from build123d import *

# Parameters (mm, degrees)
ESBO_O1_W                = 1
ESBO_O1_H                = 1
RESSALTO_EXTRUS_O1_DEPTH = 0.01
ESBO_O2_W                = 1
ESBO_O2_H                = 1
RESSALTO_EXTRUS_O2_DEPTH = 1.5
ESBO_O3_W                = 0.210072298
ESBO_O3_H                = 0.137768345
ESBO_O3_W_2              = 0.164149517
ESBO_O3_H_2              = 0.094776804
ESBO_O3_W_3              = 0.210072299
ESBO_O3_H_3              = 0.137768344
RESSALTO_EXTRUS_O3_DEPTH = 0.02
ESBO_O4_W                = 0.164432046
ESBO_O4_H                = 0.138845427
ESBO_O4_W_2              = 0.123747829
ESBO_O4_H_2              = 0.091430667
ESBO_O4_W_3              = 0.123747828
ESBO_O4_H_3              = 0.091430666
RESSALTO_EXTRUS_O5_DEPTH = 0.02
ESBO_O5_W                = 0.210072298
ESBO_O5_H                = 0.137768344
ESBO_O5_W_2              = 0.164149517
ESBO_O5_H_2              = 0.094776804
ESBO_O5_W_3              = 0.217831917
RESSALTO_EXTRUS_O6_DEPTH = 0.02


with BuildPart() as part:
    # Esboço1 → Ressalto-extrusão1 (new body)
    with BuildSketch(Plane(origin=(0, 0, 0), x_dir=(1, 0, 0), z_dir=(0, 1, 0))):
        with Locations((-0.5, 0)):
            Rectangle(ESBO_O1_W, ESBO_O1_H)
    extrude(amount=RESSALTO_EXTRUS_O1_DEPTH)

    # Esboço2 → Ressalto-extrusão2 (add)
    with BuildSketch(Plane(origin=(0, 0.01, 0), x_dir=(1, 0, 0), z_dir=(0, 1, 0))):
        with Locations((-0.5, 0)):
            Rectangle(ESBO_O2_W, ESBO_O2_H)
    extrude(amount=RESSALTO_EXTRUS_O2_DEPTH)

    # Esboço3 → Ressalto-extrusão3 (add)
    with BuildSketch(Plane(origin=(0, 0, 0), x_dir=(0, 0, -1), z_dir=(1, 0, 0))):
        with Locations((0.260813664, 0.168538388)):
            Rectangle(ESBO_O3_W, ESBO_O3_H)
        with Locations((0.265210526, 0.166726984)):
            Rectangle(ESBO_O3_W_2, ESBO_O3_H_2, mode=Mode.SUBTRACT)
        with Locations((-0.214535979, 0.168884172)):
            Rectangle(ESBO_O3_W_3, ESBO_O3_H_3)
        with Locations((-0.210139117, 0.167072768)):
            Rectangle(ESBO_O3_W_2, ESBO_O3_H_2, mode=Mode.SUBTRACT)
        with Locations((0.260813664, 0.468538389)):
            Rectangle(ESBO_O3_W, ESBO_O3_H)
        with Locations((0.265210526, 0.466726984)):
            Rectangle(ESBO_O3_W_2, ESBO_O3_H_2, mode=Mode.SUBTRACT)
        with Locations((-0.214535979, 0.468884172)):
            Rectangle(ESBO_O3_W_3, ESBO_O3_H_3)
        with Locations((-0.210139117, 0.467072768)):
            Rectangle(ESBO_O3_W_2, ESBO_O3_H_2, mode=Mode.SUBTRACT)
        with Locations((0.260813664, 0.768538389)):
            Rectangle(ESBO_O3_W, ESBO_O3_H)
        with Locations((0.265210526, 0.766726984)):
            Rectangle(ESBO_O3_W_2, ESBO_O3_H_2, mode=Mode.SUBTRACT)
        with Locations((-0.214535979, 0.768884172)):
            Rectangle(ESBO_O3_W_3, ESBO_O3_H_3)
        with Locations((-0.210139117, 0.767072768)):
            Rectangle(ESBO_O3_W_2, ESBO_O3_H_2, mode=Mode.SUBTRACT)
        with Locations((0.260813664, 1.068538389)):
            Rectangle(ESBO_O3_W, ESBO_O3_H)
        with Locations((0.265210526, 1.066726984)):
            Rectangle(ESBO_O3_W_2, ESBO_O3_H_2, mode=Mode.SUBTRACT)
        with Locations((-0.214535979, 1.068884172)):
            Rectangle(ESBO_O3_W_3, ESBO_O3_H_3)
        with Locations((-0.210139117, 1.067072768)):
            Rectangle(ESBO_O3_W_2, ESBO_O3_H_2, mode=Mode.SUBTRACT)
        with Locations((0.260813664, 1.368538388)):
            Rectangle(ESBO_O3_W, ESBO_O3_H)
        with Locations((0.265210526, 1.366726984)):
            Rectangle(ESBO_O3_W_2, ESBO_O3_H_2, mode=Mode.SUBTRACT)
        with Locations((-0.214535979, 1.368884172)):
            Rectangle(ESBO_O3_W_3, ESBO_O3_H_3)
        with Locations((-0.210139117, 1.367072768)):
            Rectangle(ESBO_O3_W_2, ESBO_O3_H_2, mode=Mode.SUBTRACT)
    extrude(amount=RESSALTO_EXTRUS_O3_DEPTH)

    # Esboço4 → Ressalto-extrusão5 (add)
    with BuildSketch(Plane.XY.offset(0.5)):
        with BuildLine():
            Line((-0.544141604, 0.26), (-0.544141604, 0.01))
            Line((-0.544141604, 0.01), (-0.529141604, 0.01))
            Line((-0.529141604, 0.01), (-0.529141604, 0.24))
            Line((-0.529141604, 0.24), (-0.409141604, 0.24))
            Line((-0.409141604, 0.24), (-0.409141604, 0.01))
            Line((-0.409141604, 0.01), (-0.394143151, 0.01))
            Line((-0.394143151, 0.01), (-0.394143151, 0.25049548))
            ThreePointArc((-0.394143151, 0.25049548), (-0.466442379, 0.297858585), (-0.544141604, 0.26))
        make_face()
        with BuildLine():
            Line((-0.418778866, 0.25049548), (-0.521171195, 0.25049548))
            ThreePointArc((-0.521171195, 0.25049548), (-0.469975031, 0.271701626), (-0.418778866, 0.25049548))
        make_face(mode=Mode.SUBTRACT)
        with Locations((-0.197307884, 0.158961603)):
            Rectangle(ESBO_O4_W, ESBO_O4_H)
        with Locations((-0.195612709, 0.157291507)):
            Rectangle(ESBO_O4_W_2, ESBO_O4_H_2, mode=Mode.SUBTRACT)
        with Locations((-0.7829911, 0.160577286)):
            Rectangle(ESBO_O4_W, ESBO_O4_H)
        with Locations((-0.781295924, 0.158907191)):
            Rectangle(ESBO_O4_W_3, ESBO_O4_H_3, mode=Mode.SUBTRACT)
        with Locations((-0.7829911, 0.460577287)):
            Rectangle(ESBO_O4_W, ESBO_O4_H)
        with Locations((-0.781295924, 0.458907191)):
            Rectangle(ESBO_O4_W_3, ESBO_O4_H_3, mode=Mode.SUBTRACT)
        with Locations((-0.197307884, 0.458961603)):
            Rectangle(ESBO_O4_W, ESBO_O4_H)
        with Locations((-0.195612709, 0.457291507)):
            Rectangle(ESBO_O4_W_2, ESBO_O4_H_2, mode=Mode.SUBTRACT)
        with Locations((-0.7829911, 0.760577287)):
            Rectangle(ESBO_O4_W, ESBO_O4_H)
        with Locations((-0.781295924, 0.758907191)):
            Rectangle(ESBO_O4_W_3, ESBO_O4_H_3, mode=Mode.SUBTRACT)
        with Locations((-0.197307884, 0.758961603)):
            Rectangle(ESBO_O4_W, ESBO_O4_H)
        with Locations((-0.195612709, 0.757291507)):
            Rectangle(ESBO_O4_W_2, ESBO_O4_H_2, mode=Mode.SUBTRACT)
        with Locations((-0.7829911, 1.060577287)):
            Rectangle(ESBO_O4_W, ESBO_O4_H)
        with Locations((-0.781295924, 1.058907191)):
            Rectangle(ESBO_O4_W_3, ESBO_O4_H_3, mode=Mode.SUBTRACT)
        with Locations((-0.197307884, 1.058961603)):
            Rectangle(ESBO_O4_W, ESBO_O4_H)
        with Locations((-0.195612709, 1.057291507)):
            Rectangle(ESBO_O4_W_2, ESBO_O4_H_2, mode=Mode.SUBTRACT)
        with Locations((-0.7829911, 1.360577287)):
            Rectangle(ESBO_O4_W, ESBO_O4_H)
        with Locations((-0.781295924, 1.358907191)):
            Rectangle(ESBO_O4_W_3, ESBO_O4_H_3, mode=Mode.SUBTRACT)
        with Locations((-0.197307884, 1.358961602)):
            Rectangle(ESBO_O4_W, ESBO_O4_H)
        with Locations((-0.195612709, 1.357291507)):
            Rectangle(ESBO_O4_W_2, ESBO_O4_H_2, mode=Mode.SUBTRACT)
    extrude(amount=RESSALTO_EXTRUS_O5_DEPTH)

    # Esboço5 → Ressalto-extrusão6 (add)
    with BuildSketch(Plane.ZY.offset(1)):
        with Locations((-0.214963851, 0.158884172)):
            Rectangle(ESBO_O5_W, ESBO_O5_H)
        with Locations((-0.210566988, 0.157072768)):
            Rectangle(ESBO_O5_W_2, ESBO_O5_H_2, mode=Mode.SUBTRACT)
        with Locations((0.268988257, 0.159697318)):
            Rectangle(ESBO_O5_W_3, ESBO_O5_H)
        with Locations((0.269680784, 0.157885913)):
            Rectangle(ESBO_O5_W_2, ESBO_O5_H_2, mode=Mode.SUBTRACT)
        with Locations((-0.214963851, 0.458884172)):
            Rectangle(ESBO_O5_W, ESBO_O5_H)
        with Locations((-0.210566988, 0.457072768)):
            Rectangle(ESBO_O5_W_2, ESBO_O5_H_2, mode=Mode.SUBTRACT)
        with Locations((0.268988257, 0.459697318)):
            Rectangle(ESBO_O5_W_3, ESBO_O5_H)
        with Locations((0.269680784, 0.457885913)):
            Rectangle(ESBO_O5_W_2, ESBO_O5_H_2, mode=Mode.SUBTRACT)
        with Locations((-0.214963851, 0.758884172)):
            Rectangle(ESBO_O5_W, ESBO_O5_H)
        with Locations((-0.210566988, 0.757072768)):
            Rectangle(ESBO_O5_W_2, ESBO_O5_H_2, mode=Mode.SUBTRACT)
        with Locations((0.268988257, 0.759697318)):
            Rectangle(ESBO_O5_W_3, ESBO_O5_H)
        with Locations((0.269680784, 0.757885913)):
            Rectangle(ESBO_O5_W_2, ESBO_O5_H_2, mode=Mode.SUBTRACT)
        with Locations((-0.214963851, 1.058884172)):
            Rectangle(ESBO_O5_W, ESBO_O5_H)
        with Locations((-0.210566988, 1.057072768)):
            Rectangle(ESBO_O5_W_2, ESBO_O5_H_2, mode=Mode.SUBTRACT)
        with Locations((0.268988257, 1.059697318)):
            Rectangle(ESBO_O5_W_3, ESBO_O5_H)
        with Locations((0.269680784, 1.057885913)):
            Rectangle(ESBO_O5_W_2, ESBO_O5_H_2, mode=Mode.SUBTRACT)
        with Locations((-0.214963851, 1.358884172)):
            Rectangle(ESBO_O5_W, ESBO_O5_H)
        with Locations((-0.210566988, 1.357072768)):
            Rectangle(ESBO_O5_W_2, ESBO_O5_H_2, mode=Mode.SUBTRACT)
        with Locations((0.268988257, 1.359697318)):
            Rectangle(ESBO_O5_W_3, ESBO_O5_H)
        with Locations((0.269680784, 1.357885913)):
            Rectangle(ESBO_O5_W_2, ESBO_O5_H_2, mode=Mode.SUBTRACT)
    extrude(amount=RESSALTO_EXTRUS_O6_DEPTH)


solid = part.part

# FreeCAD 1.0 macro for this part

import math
import FreeCAD as App
import Part
import Sketcher


def add_polygon(sketch, points):
    """Adds a closed chain of lines whose ends are joined by coincident constraints."""
    first, n = sketch.GeometryCount, len(points)
    for a, b in zip(points, points[1:] + points[:1]):
        sketch.addGeometry(Part.LineSegment(App.Vector(*a, 0), App.Vector(*b, 0)), False)
    for i in range(n):
        sketch.addConstraint(Sketcher.Constraint("Coincident", first + i, 2, first + (i + 1) % n, 1))

doc = App.newDocument("Part")
body = doc.addObject("PartDesign::Body", "Body")

sketch1 = body.newObject("Sketcher::SketchObject", "Sketch")
sketch1.AttachmentSupport = (doc.getObject("XZ_Plane"), [""])
sketch1.MapMode = "FlatFace"
add_polygon(sketch1, [(-1, -0.5), (-1, 0.5), (0, 0.5), (0, -0.5)])
sketch1.addConstraint([
    Sketcher.Constraint("Vertical", 0),
    Sketcher.Constraint("Horizontal", 1),
    Sketcher.Constraint("Vertical", 2),
    Sketcher.Constraint("Horizontal", 3),
    Sketcher.Constraint("Symmetric", 1, 2, 2, 2, -1, 1),
    Sketcher.Constraint("Equal", 3, 0),
    Sketcher.Constraint("DistanceX", 1, 1, 1, 2, 1.0),
])
pad1 = body.newObject("PartDesign::Pad", "Pad")
pad1.Profile = sketch1
pad1.Length = 0.01
pad1.Reversed = True

sketch2 = body.newObject("Sketcher::SketchObject", "Sketch001")
sketch2.AttachmentSupport = (doc.getObject("XZ_Plane"), [""])
sketch2.MapMode = "FlatFace"
sketch2.AttachmentOffset = App.Placement(App.Vector(0, 0, -0.01), App.Rotation())
add_polygon(sketch2, [(-1, -0.5), (-1, 0.5), (0, 0.5), (0, -0.5)])
sketch2.addConstraint([
    Sketcher.Constraint("Vertical", 0),
    Sketcher.Constraint("Horizontal", 1),
    Sketcher.Constraint("Vertical", 2),
    Sketcher.Constraint("Horizontal", 3),
    Sketcher.Constraint("Symmetric", 1, 2, 2, 2, -1, 1),
    Sketcher.Constraint("Equal", 3, 0),
    Sketcher.Constraint("DistanceX", 1, 1, 1, 2, 1.0),
])
pad2 = body.newObject("PartDesign::Pad", "Pad001")
pad2.Profile = sketch2
pad2.Length = 1.5
pad2.Reversed = True

sketch3 = body.newObject("Sketcher::SketchObject", "Sketch002")
sketch3.AttachmentSupport = (doc.getObject("YZ_Plane"), [""])
sketch3.MapMode = "FlatFace"
add_polygon(sketch3, [(0.24, -0.16), (0.1, -0.16), (0.1, -0.37), (0.24, -0.37)])
add_polygon(sketch3, [(0.12, -0.35), (0.12, -0.18), (0.21, -0.18), (0.21, -0.35)])
add_polygon(sketch3, [(0.24, 0.32), (0.1, 0.32), (0.1, 0.11), (0.24, 0.11)])
add_polygon(sketch3, [(0.12, 0.13), (0.12, 0.29), (0.21, 0.29), (0.21, 0.13)])
add_polygon(sketch3, [(0.54, -0.16), (0.4, -0.16), (0.4, -0.37), (0.54, -0.37)])
add_polygon(sketch3, [(0.42, -0.35), (0.42, -0.18), (0.51, -0.18), (0.51, -0.35)])
add_polygon(sketch3, [(0.54, 0.32), (0.4, 0.32), (0.4, 0.11), (0.54, 0.11)])
add_polygon(sketch3, [(0.42, 0.13), (0.42, 0.29), (0.51, 0.29), (0.51, 0.13)])
add_polygon(sketch3, [(0.84, -0.16), (0.7, -0.16), (0.7, -0.37), (0.84, -0.37)])
add_polygon(sketch3, [(0.72, -0.35), (0.72, -0.18), (0.81, -0.18), (0.81, -0.35)])
add_polygon(sketch3, [(0.84, 0.32), (0.7, 0.32), (0.7, 0.11), (0.84, 0.11)])
add_polygon(sketch3, [(0.72, 0.13), (0.72, 0.29), (0.81, 0.29), (0.81, 0.13)])
add_polygon(sketch3, [(1.14, -0.16), (1, -0.16), (1, -0.37), (1.14, -0.37)])
add_polygon(sketch3, [(1.02, -0.35), (1.02, -0.18), (1.11, -0.18), (1.11, -0.35)])
add_polygon(sketch3, [(1.14, 0.32), (1, 0.32), (1, 0.11), (1.14, 0.11)])
add_polygon(sketch3, [(1.02, 0.13), (1.02, 0.29), (1.11, 0.29), (1.11, 0.13)])
add_polygon(sketch3, [(1.44, -0.16), (1.3, -0.16), (1.3, -0.37), (1.44, -0.37)])
add_polygon(sketch3, [(1.32, -0.35), (1.32, -0.18), (1.41, -0.18), (1.41, -0.35)])
add_polygon(sketch3, [(1.44, 0.32), (1.3, 0.32), (1.3, 0.11), (1.44, 0.11)])
add_polygon(sketch3, [(1.32, 0.13), (1.32, 0.29), (1.41, 0.29), (1.41, 0.13)])
sketch3.addConstraint([
    Sketcher.Constraint("Horizontal", 0),
    Sketcher.Constraint("Vertical", 1),
    Sketcher.Constraint("Horizontal", 2),
    Sketcher.Constraint("Vertical", 3),
    Sketcher.Constraint("Vertical", 4),
    Sketcher.Constraint("Horizontal", 5),
    Sketcher.Constraint("Vertical", 6),
    Sketcher.Constraint("Horizontal", 7),
    Sketcher.Constraint("Horizontal", 8),
    Sketcher.Constraint("Vertical", 9),
    Sketcher.Constraint("Horizontal", 10),
    Sketcher.Constraint("Vertical", 11),
    Sketcher.Constraint("Vertical", 12),
    Sketcher.Constraint("Horizontal", 13),
    Sketcher.Constraint("Vertical", 14),
    Sketcher.Constraint("Horizontal", 15),
    Sketcher.Constraint("Horizontal", 16),
    Sketcher.Constraint("Vertical", 17),
    Sketcher.Constraint("Horizontal", 18),
    Sketcher.Constraint("Vertical", 19),
    Sketcher.Constraint("Vertical", 20),
    Sketcher.Constraint("Horizontal", 21),
    Sketcher.Constraint("Vertical", 22),
    Sketcher.Constraint("Horizontal", 23),
    Sketcher.Constraint("Horizontal", 24),
    Sketcher.Constraint("Vertical", 25),
    Sketcher.Constraint("Horizontal", 26),
    Sketcher.Constraint("Vertical", 27),
    Sketcher.Constraint("Vertical", 28),
    Sketcher.Constraint("Horizontal", 29),
    Sketcher.Constraint("Vertical", 30),
    Sketcher.Constraint("Horizontal", 31),
    Sketcher.Constraint("Horizontal", 32),
    Sketcher.Constraint("Vertical", 33),
    Sketcher.Constraint("Horizontal", 34),
    Sketcher.Constraint("Vertical", 35),
    Sketcher.Constraint("Vertical", 36),
    Sketcher.Constraint("Horizontal", 37),
    Sketcher.Constraint("Vertical", 38),
    Sketcher.Constraint("Horizontal", 39),
    Sketcher.Constraint("Horizontal", 40),
    Sketcher.Constraint("Vertical", 41),
    Sketcher.Constraint("Horizontal", 42),
    Sketcher.Constraint("Vertical", 43),
    Sketcher.Constraint("Vertical", 44),
    Sketcher.Constraint("Horizontal", 45),
    Sketcher.Constraint("Vertical", 46),
    Sketcher.Constraint("Horizontal", 47),
    Sketcher.Constraint("Horizontal", 48),
    Sketcher.Constraint("Vertical", 49),
    Sketcher.Constraint("Horizontal", 50),
    Sketcher.Constraint("Vertical", 51),
    Sketcher.Constraint("Vertical", 52),
    Sketcher.Constraint("Horizontal", 53),
    Sketcher.Constraint("Vertical", 54),
    Sketcher.Constraint("Horizontal", 55),
    Sketcher.Constraint("Horizontal", 56),
    Sketcher.Constraint("Vertical", 57),
    Sketcher.Constraint("Horizontal", 58),
    Sketcher.Constraint("Vertical", 59),
    Sketcher.Constraint("Vertical", 60),
    Sketcher.Constraint("Horizontal", 61),
    Sketcher.Constraint("Vertical", 62),
    Sketcher.Constraint("Horizontal", 63),
    Sketcher.Constraint("Horizontal", 64),
    Sketcher.Constraint("Vertical", 65),
    Sketcher.Constraint("Horizontal", 66),
    Sketcher.Constraint("Vertical", 67),
    Sketcher.Constraint("Vertical", 68),
    Sketcher.Constraint("Horizontal", 69),
    Sketcher.Constraint("Vertical", 70),
    Sketcher.Constraint("Horizontal", 71),
    Sketcher.Constraint("Horizontal", 72),
    Sketcher.Constraint("Vertical", 73),
    Sketcher.Constraint("Horizontal", 74),
    Sketcher.Constraint("Vertical", 75),
    Sketcher.Constraint("Vertical", 76),
    Sketcher.Constraint("Horizontal", 77),
    Sketcher.Constraint("Vertical", 78),
    Sketcher.Constraint("Horizontal", 79),
    Sketcher.Constraint("Horizontal", 3, 2, 16, 2),
    Sketcher.Constraint("Horizontal", 2, 2, 17, 2),
    Sketcher.Constraint("Horizontal", 5, 2, 20, 2),
    Sketcher.Constraint("Horizontal", 7, 2, 22, 2),
    Sketcher.Constraint("Horizontal", 11, 2, 24, 2),
    Sketcher.Constraint("Horizontal", 10, 2, 25, 2),
    Sketcher.Constraint("Horizontal", 13, 2, 28, 2),
    Sketcher.Constraint("Horizontal", 15, 2, 30, 2),
    Sketcher.Constraint("Horizontal", 19, 2, 32, 2),
    Sketcher.Constraint("Horizontal", 18, 2, 33, 2),
    Sketcher.Constraint("Horizontal", 21, 2, 36, 2),
    Sketcher.Constraint("Horizontal", 23, 2, 38, 2),
    Sketcher.Constraint("Horizontal", 27, 2, 40, 2),
    Sketcher.Constraint("Horizontal", 26, 2, 41, 2),
    Sketcher.Constraint("Horizontal", 29, 2, 44, 2),
    Sketcher.Constraint("Horizontal", 31, 2, 46, 2),
    Sketcher.Constraint("Horizontal", 35, 2, 48, 2),
    Sketcher.Constraint("Horizontal", 34, 2, 49, 2),
    Sketcher.Constraint("Horizontal", 37, 2, 52, 2),
    Sketcher.Constraint("Horizontal", 39, 2, 54, 2),
    Sketcher.Constraint("Horizontal", 43, 2, 56, 2),
    Sketcher.Constraint("Horizontal", 42, 2, 57, 2),
    Sketcher.Constraint("Horizontal", 45, 2, 60, 2),
    Sketcher.Constraint("Horizontal", 47, 2, 62, 2),
    Sketcher.Constraint("Horizontal", 51, 2, 64, 2),
    Sketcher.Constraint("Horizontal", 50, 2, 65, 2),
    Sketcher.Constraint("Horizontal", 53, 2, 68, 2),
    Sketcher.Constraint("Horizontal", 55, 2, 70, 2),
    Sketcher.Constraint("Horizontal", 59, 2, 72, 2),
    Sketcher.Constraint("Horizontal", 58, 2, 73, 2),
    Sketcher.Constraint("Horizontal", 61, 2, 76, 2),
    Sketcher.Constraint("Horizontal", 63, 2, 78, 2),
    Sketcher.Constraint("Equal", 2, 8),
    Sketcher.Constraint("Equal", 7, 13),
    Sketcher.Constraint("Equal", 10, 16),
    Sketcher.Constraint("Equal", 15, 21),
    Sketcher.Constraint("Equal", 18, 24),
    Sketcher.Constraint("Equal", 23, 29),
    Sketcher.Constraint("Equal", 26, 32),
    Sketcher.Constraint("Equal", 31, 37),
    Sketcher.Constraint("Equal", 34, 40),
    Sketcher.Constraint("Equal", 39, 45),
    Sketcher.Constraint("Equal", 42, 48),
    Sketcher.Constraint("Equal", 47, 53),
    Sketcher.Constraint("Equal", 50, 56),
    Sketcher.Constraint("Equal", 55, 61),
    Sketcher.Constraint("Equal", 58, 64),
    Sketcher.Constraint("Equal", 63, 69),
    Sketcher.Constraint("Equal", 66, 72),
    Sketcher.Constraint("Equal", 71, 77),
    Sketcher.Constraint("Equal", 3, 9),
    Sketcher.Constraint("Equal", 6, 12),
    Sketcher.Constraint("DistanceX", -1, 1, 56, 2, 1.0),
    Sketcher.Constraint("DistanceX", -1, 1, 8, 2, 0.1),
    Sketcher.Constraint("DistanceX", -1, 1, 24, 2, 0.4),
    Sketcher.Constraint("DistanceX", -1, 1, 40, 2, 0.7),
    Sketcher.Constraint("DistanceX", -1, 1, 72, 2, 1.3),
    Sketcher.Constraint("DistanceX", 0, 2, 0, 1, 0.137768),
    Sketcher.Constraint("DistanceY", 4, 1, 4, 2, 0.16415),
    Sketcher.Constraint("DistanceY", -1, 1, 9, 2, 0.1095),
    Sketcher.Constraint("DistanceX", 5, 1, 5, 2, 0.094777),
    Sketcher.Constraint("DistanceY", 1, 2, 1, 1, 0.210072),
    Sketcher.Constraint("DistanceY", 1, 2, -1, 1, 0.36585),
    Sketcher.Constraint("DistanceX", -1, 1, 4, 2, 0.119339),
    Sketcher.Constraint("DistanceX", -1, 1, 13, 2, 0.214461),
    Sketcher.Constraint("DistanceX", -1, 1, 20, 2, 0.419339),
    Sketcher.Constraint("DistanceX", -1, 1, 29, 2, 0.514461),
    Sketcher.Constraint("DistanceX", -1, 1, 36, 2, 0.719339),
    Sketcher.Constraint("DistanceX", -1, 1, 45, 2, 0.814461),
    Sketcher.Constraint("DistanceX", -1, 1, 52, 2, 1.019339),
    Sketcher.Constraint("DistanceX", -1, 1, 61, 2, 1.114461),
    Sketcher.Constraint("DistanceX", -1, 1, 68, 2, 1.319339),
    Sketcher.Constraint("DistanceX", -1, 1, 77, 2, 1.414461),
    Sketcher.Constraint("DistanceX", -1, 1, 0, 2, 0.099654),
    Sketcher.Constraint("DistanceY", 4, 2, -1, 1, 0.183136),
    Sketcher.Constraint("DistanceY", -1, 1, 12, 2, 0.292214),
    Sketcher.Constraint("DistanceX", -1, 1, 16, 2, 0.399654),
    Sketcher.Constraint("DistanceX", -1, 1, 32, 2, 0.699654),
    Sketcher.Constraint("DistanceX", -1, 1, 48, 2, 0.999654),
    Sketcher.Constraint("DistanceX", -1, 1, 64, 2, 1.299654),
])
pad3 = body.newObject("PartDesign::Pad", "Pad002")
pad3.Profile = sketch3
pad3.Length = 0.02

sketch4 = body.newObject("Sketcher::SketchObject", "Sketch003")
sketch4.AttachmentSupport = (doc.getObject("XY_Plane"), [""])
sketch4.MapMode = "FlatFace"
sketch4.AttachmentOffset = App.Placement(App.Vector(0, 0, 0.5), App.Rotation())
sketch4.addGeometry(Part.LineSegment(App.Vector(-0.544, 0.26, 0), App.Vector(-0.544, 0.01, 0)), False)
sketch4.addGeometry(Part.LineSegment(App.Vector(-0.544, 0.01, 0), App.Vector(-0.529, 0.01, 0)), False)
sketch4.addGeometry(Part.LineSegment(App.Vector(-0.529, 0.01, 0), App.Vector(-0.529, 0.24, 0)), False)
sketch4.addGeometry(Part.LineSegment(App.Vector(-0.529, 0.24, 0), App.Vector(-0.409, 0.24, 0)), False)
sketch4.addGeometry(Part.LineSegment(App.Vector(-0.409, 0.24, 0), App.Vector(-0.409, 0.01, 0)), False)
sketch4.addGeometry(Part.LineSegment(App.Vector(-0.409, 0.01, 0), App.Vector(-0.394, 0.01, 0)), False)
sketch4.addGeometry(Part.LineSegment(App.Vector(-0.394, 0.01, 0), App.Vector(-0.394, 0.25, 0)), False)
sketch4.addGeometry(Part.ArcOfCircle(Part.Circle(App.Vector(-0.472, 0.211, 0), App.Vector(0, 0, 1), 0.087), math.radians(27), math.radians(146)), False)
sketch4.addGeometry(Part.ArcOfCircle(Part.Circle(App.Vector(-0.47, 0.199, 0), App.Vector(0, 0, 1), 0.072), math.radians(45), math.radians(135)), False)
sketch4.addGeometry(Part.LineSegment(App.Vector(-0.419, 0.25, 0), App.Vector(-0.521, 0.25, 0)), False)
add_polygon(sketch4, [(-0.28, 0.228), (-0.28, 0.09), (-0.115, 0.09), (-0.115, 0.228)])
add_polygon(sketch4, [(-0.134, 0.112), (-0.257, 0.112), (-0.257, 0.203), (-0.134, 0.203)])
add_polygon(sketch4, [(-0.865, 0.23), (-0.865, 0.091), (-0.701, 0.091), (-0.701, 0.23)])
add_polygon(sketch4, [(-0.719, 0.113), (-0.843, 0.113), (-0.843, 0.205), (-0.719, 0.205)])
add_polygon(sketch4, [(-0.865, 0.53), (-0.865, 0.391), (-0.701, 0.391), (-0.701, 0.53)])
add_polygon(sketch4, [(-0.719, 0.413), (-0.843, 0.413), (-0.843, 0.505), (-0.719, 0.505)])
add_polygon(sketch4, [(-0.28, 0.528), (-0.28, 0.39), (-0.115, 0.39), (-0.115, 0.528)])
add_polygon(sketch4, [(-0.134, 0.412), (-0.257, 0.412), (-0.257, 0.503), (-0.134, 0.503)])
add_polygon(sketch4, [(-0.865, 0.83), (-0.865, 0.691), (-0.701, 0.691), (-0.701, 0.83)])
add_polygon(sketch4, [(-0.719, 0.713), (-0.843, 0.713), (-0.843, 0.805), (-0.719, 0.805)])
add_polygon(sketch4, [(-0.28, 0.828), (-0.28, 0.69), (-0.115, 0.69), (-0.115, 0.828)])
add_polygon(sketch4, [(-0.134, 0.712), (-0.257, 0.712), (-0.257, 0.803), (-0.134, 0.803)])
add_polygon(sketch4, [(-0.865, 1.13), (-0.865, 0.991), (-0.701, 0.991), (-0.701, 1.13)])
add_polygon(sketch4, [(-0.719, 1.013), (-0.843, 1.013), (-0.843, 1.105), (-0.719, 1.105)])
add_polygon(sketch4, [(-0.28, 1.128), (-0.28, 0.99), (-0.115, 0.99), (-0.115, 1.128)])
add_polygon(sketch4, [(-0.134, 1.012), (-0.257, 1.012), (-0.257, 1.103), (-0.134, 1.103)])
add_polygon(sketch4, [(-0.865, 1.43), (-0.865, 1.291), (-0.701, 1.291), (-0.701, 1.43)])
add_polygon(sketch4, [(-0.719, 1.313), (-0.843, 1.313), (-0.843, 1.405), (-0.719, 1.405)])
add_polygon(sketch4, [(-0.28, 1.428), (-0.28, 1.29), (-0.115, 1.29), (-0.115, 1.428)])
add_polygon(sketch4, [(-0.134, 1.312), (-0.257, 1.312), (-0.257, 1.403), (-0.134, 1.403)])
sketch4.addConstraint([
    Sketcher.Constraint("Coincident", 0, 2, 1, 1),
    Sketcher.Constraint("Coincident", 1, 2, 2, 1),
    Sketcher.Constraint("Coincident", 2, 2, 3, 1),
    Sketcher.Constraint("Coincident", 3, 2, 4, 1),
    Sketcher.Constraint("Coincident", 4, 2, 5, 1),
    Sketcher.Constraint("Coincident", 5, 2, 6, 1),
    Sketcher.Constraint("Coincident", 6, 2, 7, 1),
    Sketcher.Constraint("Coincident", 7, 2, 0, 1),
    Sketcher.Constraint("Coincident", 8, 1, 9, 1),
    Sketcher.Constraint("Coincident", 9, 2, 8, 2),
    Sketcher.Constraint("Vertical", 0),
    Sketcher.Constraint("Horizontal", 1),
    Sketcher.Constraint("Vertical", 2),
    Sketcher.Constraint("Horizontal", 3),
    Sketcher.Constraint("Vertical", 4),
    Sketcher.Constraint("Horizontal", 5),
    Sketcher.Constraint("Vertical", 6),
    Sketcher.Constraint("Horizontal", 9),
    Sketcher.Constraint("Vertical", 10),
    Sketcher.Constraint("Horizontal", 11),
    Sketcher.Constraint("Vertical", 12),
    Sketcher.Constraint("Horizontal", 13),
    Sketcher.Constraint("Horizontal", 14),
    Sketcher.Constraint("Vertical", 15),
    Sketcher.Constraint("Horizontal", 16),
    Sketcher.Constraint("Vertical", 17),
    Sketcher.Constraint("Vertical", 18),
    Sketcher.Constraint("Horizontal", 19),
    Sketcher.Constraint("Vertical", 20),
    Sketcher.Constraint("Horizontal", 21),
    Sketcher.Constraint("Horizontal", 22),
    Sketcher.Constraint("Vertical", 23),
    Sketcher.Constraint("Horizontal", 24),
    Sketcher.Constraint("Vertical", 25),
    Sketcher.Constraint("Vertical", 26),
    Sketcher.Constraint("Horizontal", 27),
    Sketcher.Constraint("Vertical", 28),
    Sketcher.Constraint("Horizontal", 29),
    Sketcher.Constraint("Horizontal", 30),
    Sketcher.Constraint("Vertical", 31),
    Sketcher.Constraint("Horizontal", 32),
    Sketcher.Constraint("Vertical", 33),
    Sketcher.Constraint("Vertical", 34),
    Sketcher.Constraint("Horizontal", 35),
    Sketcher.Constraint("Vertical", 36),
    Sketcher.Constraint("Horizontal", 37),
    Sketcher.Constraint("Horizontal", 38),
    Sketcher.Constraint("Vertical", 39),
    Sketcher.Constraint("Horizontal", 40),
    Sketcher.Constraint("Vertical", 41),
    Sketcher.Constraint("Vertical", 42),
    Sketcher.Constraint("Horizontal", 43),
    Sketcher.Constraint("Vertical", 44),
    Sketcher.Constraint("Horizontal", 45),
    Sketcher.Constraint("Horizontal", 46),
    Sketcher.Constraint("Vertical", 47),
    Sketcher.Constraint("Horizontal", 48),
    Sketcher.Constraint("Vertical", 49),
    Sketcher.Constraint("Vertical", 50),
    Sketcher.Constraint("Horizontal", 51),
    Sketcher.Constraint("Vertical", 52),
    Sketcher.Constraint("Horizontal", 53),
    Sketcher.Constraint("Horizontal", 54),
    Sketcher.Constraint("Vertical", 55),
    Sketcher.Constraint("Horizontal", 56),
    Sketcher.Constraint("Vertical", 57),
    Sketcher.Constraint("Vertical", 58),
    Sketcher.Constraint("Horizontal", 59),
    Sketcher.Constraint("Vertical", 60),
    Sketcher.Constraint("Horizontal", 61),
    Sketcher.Constraint("Horizontal", 62),
    Sketcher.Constraint("Vertical", 63),
    Sketcher.Constraint("Horizontal", 64),
    Sketcher.Constraint("Vertical", 65),
    Sketcher.Constraint("Vertical", 66),
    Sketcher.Constraint("Horizontal", 67),
    Sketcher.Constraint("Vertical", 68),
    Sketcher.Constraint("Horizontal", 69),
    Sketcher.Constraint("Horizontal", 70),
    Sketcher.Constraint("Vertical", 71),
    Sketcher.Constraint("Horizontal", 72),
    Sketcher.Constraint("Vertical", 73),
    Sketcher.Constraint("Vertical", 74),
    Sketcher.Constraint("Horizontal", 75),
    Sketcher.Constraint("Vertical", 76),
    Sketcher.Constraint("Horizontal", 77),
    Sketcher.Constraint("Horizontal", 78),
    Sketcher.Constraint("Vertical", 79),
    Sketcher.Constraint("Horizontal", 80),
    Sketcher.Constraint("Vertical", 81),
    Sketcher.Constraint("Vertical", 82),
    Sketcher.Constraint("Horizontal", 83),
    Sketcher.Constraint("Vertical", 84),
    Sketcher.Constraint("Horizontal", 85),
    Sketcher.Constraint("Horizontal", 86),
    Sketcher.Constraint("Vertical", 87),
    Sketcher.Constraint("Horizontal", 88),
    Sketcher.Constraint("Vertical", 89),
    Sketcher.Constraint("Horizontal", 1, 2, 4, 2),
    Sketcher.Constraint("Horizontal", 6, 2, 8, 1),
    Sketcher.Constraint("Vertical", 21, 2, 26, 2),
    Sketcher.Constraint("Vertical", 20, 2, 27, 2),
    Sketcher.Constraint("Vertical", 23, 2, 30, 2),
    Sketcher.Constraint("Vertical", 25, 2, 32, 2),
    Sketcher.Constraint("Vertical", 13, 2, 34, 2),
    Sketcher.Constraint("Vertical", 12, 2, 35, 2),
    Sketcher.Constraint("Vertical", 15, 2, 38, 2),
    Sketcher.Constraint("Vertical", 17, 2, 40, 2),
    Sketcher.Constraint("Vertical", 29, 2, 42, 2),
    Sketcher.Constraint("Vertical", 28, 2, 43, 2),
    Sketcher.Constraint("Vertical", 31, 2, 46, 2),
    Sketcher.Constraint("Vertical", 33, 2, 48, 2),
    Sketcher.Constraint("Vertical", 37, 2, 50, 2),
    Sketcher.Constraint("Vertical", 36, 2, 51, 2),
    Sketcher.Constraint("Vertical", 39, 2, 54, 2),
    Sketcher.Constraint("Vertical", 41, 2, 56, 2),
    Sketcher.Constraint("Vertical", 45, 2, 58, 2),
    Sketcher.Constraint("Vertical", 44, 2, 59, 2),
    Sketcher.Constraint("Vertical", 47, 2, 62, 2),
    Sketcher.Constraint("Vertical", 49, 2, 64, 2),
    Sketcher.Constraint("Vertical", 53, 2, 66, 2),
    Sketcher.Constraint("Vertical", 52, 2, 67, 2),
    Sketcher.Constraint("Vertical", 55, 2, 70, 2),
    Sketcher.Constraint("Vertical", 57, 2, 72, 2),
    Sketcher.Constraint("Vertical", 61, 2, 74, 2),
    Sketcher.Constraint("Vertical", 60, 2, 75, 2),
    Sketcher.Constraint("Vertical", 63, 2, 78, 2),
    Sketcher.Constraint("Vertical", 65, 2, 80, 2),
    Sketcher.Constraint("Vertical", 69, 2, 82, 2),
    Sketcher.Constraint("Vertical", 68, 2, 83, 2),
    Sketcher.Constraint("Vertical", 71, 2, 86, 2),
    Sketcher.Constraint("Vertical", 73, 2, 88, 2),
    Sketcher.Constraint("Equal", 1, 5),
    Sketcher.Constraint("Equal", 13, 19),
    Sketcher.Constraint("Equal", 16, 22),
    Sketcher.Constraint("Equal", 12, 18),
    Sketcher.Constraint("Equal", 17, 23),
    Sketcher.Constraint("Equal", 20, 26),
    Sketcher.Constraint("Equal", 25, 31),
    Sketcher.Constraint("Equal", 28, 34),
    Sketcher.Constraint("Equal", 33, 39),
    Sketcher.Constraint("Equal", 36, 42),
    Sketcher.Constraint("Equal", 41, 47),
    Sketcher.Constraint("Equal", 44, 50),
    Sketcher.Constraint("Equal", 49, 55),
    Sketcher.Constraint("Equal", 52, 58),
    Sketcher.Constraint("Equal", 57, 63),
    Sketcher.Constraint("Equal", 60, 66),
    Sketcher.Constraint("Equal", 65, 71),
    Sketcher.Constraint("Equal", 68, 74),
    Sketcher.Constraint("Equal", 73, 79),
    Sketcher.Constraint("Equal", 76, 82),
    Sketcher.Constraint("Equal", 81, 87),
    Sketcher.Constraint("DistanceX", 3, 1, 3, 2, 0.12),
    Sketcher.Constraint("DistanceY", 0, 2, 0, 1, 0.25),
    Sketcher.Constraint("DistanceY", 2, 1, 2, 2, 0.23),
    Sketcher.Constraint("DistanceX", 1, 1, 1, 2, 0.015),
    Sketcher.Constraint("DistanceY", -1, 1, 0, 2, 0.01),
    Sketcher.Constraint("DistanceY", -1, 1, 20, 2, 0.23),
    Sketcher.Constraint("DistanceY", -1, 1, 28, 2, 0.53),
    Sketcher.Constraint("DistanceY", -1, 1, 44, 2, 0.83),
    Sketcher.Constraint("DistanceY", -1, 1, 60, 2, 1.13),
    Sketcher.Constraint("DistanceY", -1, 1, 76, 2, 1.43),
    Sketcher.Constraint("Radius", 7, 0.087483),
    Sketcher.Constraint("Radius", 8, 0.072402),
    Sketcher.Constraint("DistanceY", 15, 1, 15, 2, 0.091431),
    Sketcher.Constraint("DistanceY", -1, 1, 8, 3, 0.199299),
    Sketcher.Constraint("DistanceX", 9, 2, 9, 1, 0.102392),
    Sketcher.Constraint("DistanceX", 11, 1, 11, 2, 0.164432),
    Sketcher.Constraint("DistanceX", 14, 2, 14, 1, 0.123748),
    Sketcher.Constraint("DistanceY", 10, 2, 10, 1, 0.138845),
    Sketcher.Constraint("DistanceX", 0, 2, -1, 1, 0.544142),
    Sketcher.Constraint("DistanceX", 8, 1, -1, 1, 0.418779),
    Sketcher.Constraint("DistanceY", -1, 1, 10, 2, 0.089539),
    Sketcher.Constraint("DistanceX", 11, 2, -1, 1, 0.115092),
    Sketcher.Constraint("DistanceX", 16, 2, -1, 1, 0.133739),
    Sketcher.Constraint("DistanceX", 22, 2, -1, 1, 0.84317),
    Sketcher.Constraint("DistanceY", -1, 1, 22, 2, 0.113192),
    Sketcher.Constraint("DistanceY", -1, 1, 30, 2, 0.413192),
    Sketcher.Constraint("DistanceY", -1, 1, 34, 2, 0.389539),
    Sketcher.Constraint("DistanceY", -1, 1, 46, 2, 0.713192),
    Sketcher.Constraint("DistanceY", -1, 1, 50, 2, 0.689539),
    Sketcher.Constraint("DistanceY", -1, 1, 62, 2, 1.013192),
    Sketcher.Constraint("DistanceY", -1, 1, 66, 2, 0.989539),
    Sketcher.Constraint("DistanceY", -1, 1, 78, 2, 1.313192),
    Sketcher.Constraint("DistanceY", -1, 1, 82, 2, 1.289539),
    Sketcher.Constraint("DistanceY", -1, 1, 14, 2, 0.111576),
    Sketcher.Constraint("DistanceX", 18, 2, -1, 1, 0.865207),
    Sketcher.Constraint("DistanceY", -1, 1, 38, 2, 0.411576),
    Sketcher.Constraint("DistanceY", -1, 1, 54, 2, 0.711576),
    Sketcher.Constraint("DistanceY", -1, 1, 70, 2, 1.011576),
    Sketcher.Constraint("DistanceY", -1, 1, 86, 2, 1.311576),
])
pad4 = body.newObject("PartDesign::Pad", "Pad003")
pad4.Profile = sketch4
pad4.Length = 0.02

sketch5 = body.newObject("Sketcher::SketchObject", "Sketch004")
sketch5.AttachmentSupport = (doc.getObject("YZ_Plane"), [""])
sketch5.MapMode = "FlatFace"
sketch5.AttachmentOffset = App.Placement(App.Vector(0, 0, -1), App.Rotation())
add_polygon(sketch5, [(0.23, -0.32), (0.09, -0.32), (0.09, -0.11), (0.23, -0.11)])
add_polygon(sketch5, [(0.11, -0.13), (0.11, -0.29), (0.2, -0.29), (0.2, -0.13)])
add_polygon(sketch5, [(0.23, 0.16), (0.09, 0.16), (0.09, 0.38), (0.23, 0.38)])
add_polygon(sketch5, [(0.11, 0.35), (0.11, 0.19), (0.21, 0.19), (0.21, 0.35)])
add_polygon(sketch5, [(0.53, -0.32), (0.39, -0.32), (0.39, -0.11), (0.53, -0.11)])
add_polygon(sketch5, [(0.41, -0.13), (0.41, -0.29), (0.5, -0.29), (0.5, -0.13)])
add_polygon(sketch5, [(0.53, 0.16), (0.39, 0.16), (0.39, 0.38), (0.53, 0.38)])
add_polygon(sketch5, [(0.41, 0.35), (0.41, 0.19), (0.51, 0.19), (0.51, 0.35)])
add_polygon(sketch5, [(0.83, -0.32), (0.69, -0.32), (0.69, -0.11), (0.83, -0.11)])
add_polygon(sketch5, [(0.71, -0.13), (0.71, -0.29), (0.8, -0.29), (0.8, -0.13)])
add_polygon(sketch5, [(0.83, 0.16), (0.69, 0.16), (0.69, 0.38), (0.83, 0.38)])
add_polygon(sketch5, [(0.71, 0.35), (0.71, 0.19), (0.81, 0.19), (0.81, 0.35)])
add_polygon(sketch5, [(1.13, -0.32), (0.99, -0.32), (0.99, -0.11), (1.13, -0.11)])
add_polygon(sketch5, [(1.01, -0.13), (1.01, -0.29), (1.1, -0.29), (1.1, -0.13)])
add_polygon(sketch5, [(1.13, 0.16), (0.99, 0.16), (0.99, 0.38), (1.13, 0.38)])
add_polygon(sketch5, [(1.01, 0.35), (1.01, 0.19), (1.11, 0.19), (1.11, 0.35)])
add_polygon(sketch5, [(1.43, -0.32), (1.29, -0.32), (1.29, -0.11), (1.43, -0.11)])
add_polygon(sketch5, [(1.31, -0.13), (1.31, -0.29), (1.4, -0.29), (1.4, -0.13)])
add_polygon(sketch5, [(1.43, 0.16), (1.29, 0.16), (1.29, 0.38), (1.43, 0.38)])
add_polygon(sketch5, [(1.31, 0.35), (1.31, 0.19), (1.41, 0.19), (1.41, 0.35)])
sketch5.addConstraint([
    Sketcher.Constraint("Horizontal", 0),
    Sketcher.Constraint("Vertical", 1),
    Sketcher.Constraint("Horizontal", 2),
    Sketcher.Constraint("Vertical", 3),
    Sketcher.Constraint("Vertical", 4),
    Sketcher.Constraint("Horizontal", 5),
    Sketcher.Constraint("Vertical", 6),
    Sketcher.Constraint("Horizontal", 7),
    Sketcher.Constraint("Horizontal", 8),
    Sketcher.Constraint("Vertical", 9),
    Sketcher.Constraint("Horizontal", 10),
    Sketcher.Constraint("Vertical", 11),
    Sketcher.Constraint("Vertical", 12),
    Sketcher.Constraint("Horizontal", 13),
    Sketcher.Constraint("Vertical", 14),
    Sketcher.Constraint("Horizontal", 15),
    Sketcher.Constraint("Horizontal", 16),
    Sketcher.Constraint("Vertical", 17),
    Sketcher.Constraint("Horizontal", 18),
    Sketcher.Constraint("Vertical", 19),
    Sketcher.Constraint("Vertical", 20),
    Sketcher.Constraint("Horizontal", 21),
    Sketcher.Constraint("Vertical", 22),
    Sketcher.Constraint("Horizontal", 23),
    Sketcher.Constraint("Horizontal", 24),
    Sketcher.Constraint("Vertical", 25),
    Sketcher.Constraint("Horizontal", 26),
    Sketcher.Constraint("Vertical", 27),
    Sketcher.Constraint("Vertical", 28),
    Sketcher.Constraint("Horizontal", 29),
    Sketcher.Constraint("Vertical", 30),
    Sketcher.Constraint("Horizontal", 31),
    Sketcher.Constraint("Horizontal", 32),
    Sketcher.Constraint("Vertical", 33),
    Sketcher.Constraint("Horizontal", 34),
    Sketcher.Constraint("Vertical", 35),
    Sketcher.Constraint("Vertical", 36),
    Sketcher.Constraint("Horizontal", 37),
    Sketcher.Constraint("Vertical", 38),
    Sketcher.Constraint("Horizontal", 39),
    Sketcher.Constraint("Horizontal", 40),
    Sketcher.Constraint("Vertical", 41),
    Sketcher.Constraint("Horizontal", 42),
    Sketcher.Constraint("Vertical", 43),
    Sketcher.Constraint("Vertical", 44),
    Sketcher.Constraint("Horizontal", 45),
    Sketcher.Constraint("Vertical", 46),
    Sketcher.Constraint("Horizontal", 47),
    Sketcher.Constraint("Horizontal", 48),
    Sketcher.Constraint("Vertical", 49),
    Sketcher.Constraint("Horizontal", 50),
    Sketcher.Constraint("Vertical", 51),
    Sketcher.Constraint("Vertical", 52),
    Sketcher.Constraint("Horizontal", 53),
    Sketcher.Constraint("Vertical", 54),
    Sketcher.Constraint("Horizontal", 55),
    Sketcher.Constraint("Horizontal", 56),
    Sketcher.Constraint("Vertical", 57),
    Sketcher.Constraint("Horizontal", 58),
    Sketcher.Constraint("Vertical", 59),
    Sketcher.Constraint("Vertical", 60),
    Sketcher.Constraint("Horizontal", 61),
    Sketcher.Constraint("Vertical", 62),
    Sketcher.Constraint("Horizontal", 63),
    Sketcher.Constraint("Horizontal", 64),
    Sketcher.Constraint("Vertical", 65),
    Sketcher.Constraint("Horizontal", 66),
    Sketcher.Constraint("Vertical", 67),
    Sketcher.Constraint("Vertical", 68),
    Sketcher.Constraint("Horizontal", 69),
    Sketcher.Constraint("Vertical", 70),
    Sketcher.Constraint("Horizontal", 71),
    Sketcher.Constraint("Horizontal", 72),
    Sketcher.Constraint("Vertical", 73),
    Sketcher.Constraint("Horizontal", 74),
    Sketcher.Constraint("Vertical", 75),
    Sketcher.Constraint("Vertical", 76),
    Sketcher.Constraint("Horizontal", 77),
    Sketcher.Constraint("Vertical", 78),
    Sketcher.Constraint("Horizontal", 79),
    Sketcher.Constraint("Horizontal", 3, 2, 16, 2),
    Sketcher.Constraint("Horizontal", 2, 2, 17, 2),
    Sketcher.Constraint("Horizontal", 5, 2, 20, 2),
    Sketcher.Constraint("Horizontal", 7, 2, 22, 2),
    Sketcher.Constraint("Horizontal", 11, 2, 24, 2),
    Sketcher.Constraint("Horizontal", 10, 2, 25, 2),
    Sketcher.Constraint("Horizontal", 13, 2, 28, 2),
    Sketcher.Constraint("Horizontal", 15, 2, 30, 2),
    Sketcher.Constraint("Horizontal", 19, 2, 32, 2),
    Sketcher.Constraint("Horizontal", 18, 2, 33, 2),
    Sketcher.Constraint("Horizontal", 21, 2, 36, 2),
    Sketcher.Constraint("Horizontal", 23, 2, 38, 2),
    Sketcher.Constraint("Horizontal", 27, 2, 40, 2),
    Sketcher.Constraint("Horizontal", 26, 2, 41, 2),
    Sketcher.Constraint("Horizontal", 29, 2, 44, 2),
    Sketcher.Constraint("Horizontal", 31, 2, 46, 2),
    Sketcher.Constraint("Horizontal", 35, 2, 48, 2),
    Sketcher.Constraint("Horizontal", 34, 2, 49, 2),
    Sketcher.Constraint("Horizontal", 37, 2, 52, 2),
    Sketcher.Constraint("Horizontal", 39, 2, 54, 2),
    Sketcher.Constraint("Horizontal", 43, 2, 56, 2),
    Sketcher.Constraint("Horizontal", 42, 2, 57, 2),
    Sketcher.Constraint("Horizontal", 45, 2, 60, 2),
    Sketcher.Constraint("Horizontal", 47, 2, 62, 2),
    Sketcher.Constraint("Horizontal", 51, 2, 64, 2),
    Sketcher.Constraint("Horizontal", 50, 2, 65, 2),
    Sketcher.Constraint("Horizontal", 53, 2, 68, 2),
    Sketcher.Constraint("Horizontal", 55, 2, 70, 2),
    Sketcher.Constraint("Horizontal", 59, 2, 72, 2),
    Sketcher.Constraint("Horizontal", 58, 2, 73, 2),
    Sketcher.Constraint("Horizontal", 61, 2, 76, 2),
    Sketcher.Constraint("Horizontal", 63, 2, 78, 2),
    Sketcher.Constraint("Equal", 2, 8),
    Sketcher.Constraint("Equal", 7, 13),
    Sketcher.Constraint("Equal", 10, 16),
    Sketcher.Constraint("Equal", 15, 21),
    Sketcher.Constraint("Equal", 18, 24),
    Sketcher.Constraint("Equal", 23, 29),
    Sketcher.Constraint("Equal", 26, 32),
    Sketcher.Constraint("Equal", 31, 37),
    Sketcher.Constraint("Equal", 34, 40),
    Sketcher.Constraint("Equal", 39, 45),
    Sketcher.Constraint("Equal", 42, 48),
    Sketcher.Constraint("Equal", 47, 53),
    Sketcher.Constraint("Equal", 50, 56),
    Sketcher.Constraint("Equal", 55, 61),
    Sketcher.Constraint("Equal", 58, 64),
    Sketcher.Constraint("Equal", 63, 69),
    Sketcher.Constraint("Equal", 66, 72),
    Sketcher.Constraint("Equal", 71, 77),
    Sketcher.Constraint("Equal", 6, 12),
    Sketcher.Constraint("DistanceX", -1, 1, 0, 2, 0.09),
    Sketcher.Constraint("DistanceY", 0, 2, -1, 1, 0.32),
    Sketcher.Constraint("DistanceX", -1, 1, 16, 2, 0.39),
    Sketcher.Constraint("DistanceX", -1, 1, 32, 2, 0.69),
    Sketcher.Constraint("DistanceX", -1, 1, 48, 2, 0.99),
    Sketcher.Constraint("DistanceX", -1, 1, 64, 2, 1.29),
    Sketcher.Constraint("DistanceX", 0, 2, 0, 1, 0.137768),
    Sketcher.Constraint("DistanceY", 4, 2, 4, 1, 0.16415),
    Sketcher.Constraint("DistanceY", 9, 1, 9, 2, 0.217832),
    Sketcher.Constraint("DistanceX", 5, 1, 5, 2, 0.094777),
    Sketcher.Constraint("DistanceY", 1, 1, 1, 2, 0.210072),
    Sketcher.Constraint("DistanceY", 4, 2, -1, 1, 0.292642),
    Sketcher.Constraint("DistanceX", -1, 1, 5, 2, 0.204461),
    Sketcher.Constraint("DistanceX", -1, 1, 10, 2, 0.228581),
    Sketcher.Constraint("DistanceX", -1, 1, 21, 2, 0.504461),
    Sketcher.Constraint("DistanceX", -1, 1, 26, 2, 0.528581),
    Sketcher.Constraint("DistanceX", -1, 1, 37, 2, 0.804461),
    Sketcher.Constraint("DistanceX", -1, 1, 42, 2, 0.828581),
    Sketcher.Constraint("DistanceX", -1, 1, 53, 2, 1.104461),
    Sketcher.Constraint("DistanceX", -1, 1, 58, 2, 1.128581),
    Sketcher.Constraint("DistanceX", -1, 1, 69, 2, 1.404461),
    Sketcher.Constraint("DistanceX", -1, 1, 74, 2, 1.428581),
    Sketcher.Constraint("DistanceY", -1, 1, 8, 2, 0.160072),
    Sketcher.Constraint("DistanceX", -1, 1, 12, 2, 0.110498),
    Sketcher.Constraint("DistanceY", -1, 1, 12, 2, 0.187606),
    Sketcher.Constraint("DistanceX", -1, 1, 28, 2, 0.410498),
    Sketcher.Constraint("DistanceX", -1, 1, 44, 2, 0.710498),
    Sketcher.Constraint("DistanceX", -1, 1, 60, 2, 1.010498),
    Sketcher.Constraint("DistanceX", -1, 1, 76, 2, 1.310498),
])
pad5 = body.newObject("PartDesign::Pad", "Pad004")
pad5.Profile = sketch5
pad5.Length = 0.02
pad5.Reversed = True

doc.recompute()
